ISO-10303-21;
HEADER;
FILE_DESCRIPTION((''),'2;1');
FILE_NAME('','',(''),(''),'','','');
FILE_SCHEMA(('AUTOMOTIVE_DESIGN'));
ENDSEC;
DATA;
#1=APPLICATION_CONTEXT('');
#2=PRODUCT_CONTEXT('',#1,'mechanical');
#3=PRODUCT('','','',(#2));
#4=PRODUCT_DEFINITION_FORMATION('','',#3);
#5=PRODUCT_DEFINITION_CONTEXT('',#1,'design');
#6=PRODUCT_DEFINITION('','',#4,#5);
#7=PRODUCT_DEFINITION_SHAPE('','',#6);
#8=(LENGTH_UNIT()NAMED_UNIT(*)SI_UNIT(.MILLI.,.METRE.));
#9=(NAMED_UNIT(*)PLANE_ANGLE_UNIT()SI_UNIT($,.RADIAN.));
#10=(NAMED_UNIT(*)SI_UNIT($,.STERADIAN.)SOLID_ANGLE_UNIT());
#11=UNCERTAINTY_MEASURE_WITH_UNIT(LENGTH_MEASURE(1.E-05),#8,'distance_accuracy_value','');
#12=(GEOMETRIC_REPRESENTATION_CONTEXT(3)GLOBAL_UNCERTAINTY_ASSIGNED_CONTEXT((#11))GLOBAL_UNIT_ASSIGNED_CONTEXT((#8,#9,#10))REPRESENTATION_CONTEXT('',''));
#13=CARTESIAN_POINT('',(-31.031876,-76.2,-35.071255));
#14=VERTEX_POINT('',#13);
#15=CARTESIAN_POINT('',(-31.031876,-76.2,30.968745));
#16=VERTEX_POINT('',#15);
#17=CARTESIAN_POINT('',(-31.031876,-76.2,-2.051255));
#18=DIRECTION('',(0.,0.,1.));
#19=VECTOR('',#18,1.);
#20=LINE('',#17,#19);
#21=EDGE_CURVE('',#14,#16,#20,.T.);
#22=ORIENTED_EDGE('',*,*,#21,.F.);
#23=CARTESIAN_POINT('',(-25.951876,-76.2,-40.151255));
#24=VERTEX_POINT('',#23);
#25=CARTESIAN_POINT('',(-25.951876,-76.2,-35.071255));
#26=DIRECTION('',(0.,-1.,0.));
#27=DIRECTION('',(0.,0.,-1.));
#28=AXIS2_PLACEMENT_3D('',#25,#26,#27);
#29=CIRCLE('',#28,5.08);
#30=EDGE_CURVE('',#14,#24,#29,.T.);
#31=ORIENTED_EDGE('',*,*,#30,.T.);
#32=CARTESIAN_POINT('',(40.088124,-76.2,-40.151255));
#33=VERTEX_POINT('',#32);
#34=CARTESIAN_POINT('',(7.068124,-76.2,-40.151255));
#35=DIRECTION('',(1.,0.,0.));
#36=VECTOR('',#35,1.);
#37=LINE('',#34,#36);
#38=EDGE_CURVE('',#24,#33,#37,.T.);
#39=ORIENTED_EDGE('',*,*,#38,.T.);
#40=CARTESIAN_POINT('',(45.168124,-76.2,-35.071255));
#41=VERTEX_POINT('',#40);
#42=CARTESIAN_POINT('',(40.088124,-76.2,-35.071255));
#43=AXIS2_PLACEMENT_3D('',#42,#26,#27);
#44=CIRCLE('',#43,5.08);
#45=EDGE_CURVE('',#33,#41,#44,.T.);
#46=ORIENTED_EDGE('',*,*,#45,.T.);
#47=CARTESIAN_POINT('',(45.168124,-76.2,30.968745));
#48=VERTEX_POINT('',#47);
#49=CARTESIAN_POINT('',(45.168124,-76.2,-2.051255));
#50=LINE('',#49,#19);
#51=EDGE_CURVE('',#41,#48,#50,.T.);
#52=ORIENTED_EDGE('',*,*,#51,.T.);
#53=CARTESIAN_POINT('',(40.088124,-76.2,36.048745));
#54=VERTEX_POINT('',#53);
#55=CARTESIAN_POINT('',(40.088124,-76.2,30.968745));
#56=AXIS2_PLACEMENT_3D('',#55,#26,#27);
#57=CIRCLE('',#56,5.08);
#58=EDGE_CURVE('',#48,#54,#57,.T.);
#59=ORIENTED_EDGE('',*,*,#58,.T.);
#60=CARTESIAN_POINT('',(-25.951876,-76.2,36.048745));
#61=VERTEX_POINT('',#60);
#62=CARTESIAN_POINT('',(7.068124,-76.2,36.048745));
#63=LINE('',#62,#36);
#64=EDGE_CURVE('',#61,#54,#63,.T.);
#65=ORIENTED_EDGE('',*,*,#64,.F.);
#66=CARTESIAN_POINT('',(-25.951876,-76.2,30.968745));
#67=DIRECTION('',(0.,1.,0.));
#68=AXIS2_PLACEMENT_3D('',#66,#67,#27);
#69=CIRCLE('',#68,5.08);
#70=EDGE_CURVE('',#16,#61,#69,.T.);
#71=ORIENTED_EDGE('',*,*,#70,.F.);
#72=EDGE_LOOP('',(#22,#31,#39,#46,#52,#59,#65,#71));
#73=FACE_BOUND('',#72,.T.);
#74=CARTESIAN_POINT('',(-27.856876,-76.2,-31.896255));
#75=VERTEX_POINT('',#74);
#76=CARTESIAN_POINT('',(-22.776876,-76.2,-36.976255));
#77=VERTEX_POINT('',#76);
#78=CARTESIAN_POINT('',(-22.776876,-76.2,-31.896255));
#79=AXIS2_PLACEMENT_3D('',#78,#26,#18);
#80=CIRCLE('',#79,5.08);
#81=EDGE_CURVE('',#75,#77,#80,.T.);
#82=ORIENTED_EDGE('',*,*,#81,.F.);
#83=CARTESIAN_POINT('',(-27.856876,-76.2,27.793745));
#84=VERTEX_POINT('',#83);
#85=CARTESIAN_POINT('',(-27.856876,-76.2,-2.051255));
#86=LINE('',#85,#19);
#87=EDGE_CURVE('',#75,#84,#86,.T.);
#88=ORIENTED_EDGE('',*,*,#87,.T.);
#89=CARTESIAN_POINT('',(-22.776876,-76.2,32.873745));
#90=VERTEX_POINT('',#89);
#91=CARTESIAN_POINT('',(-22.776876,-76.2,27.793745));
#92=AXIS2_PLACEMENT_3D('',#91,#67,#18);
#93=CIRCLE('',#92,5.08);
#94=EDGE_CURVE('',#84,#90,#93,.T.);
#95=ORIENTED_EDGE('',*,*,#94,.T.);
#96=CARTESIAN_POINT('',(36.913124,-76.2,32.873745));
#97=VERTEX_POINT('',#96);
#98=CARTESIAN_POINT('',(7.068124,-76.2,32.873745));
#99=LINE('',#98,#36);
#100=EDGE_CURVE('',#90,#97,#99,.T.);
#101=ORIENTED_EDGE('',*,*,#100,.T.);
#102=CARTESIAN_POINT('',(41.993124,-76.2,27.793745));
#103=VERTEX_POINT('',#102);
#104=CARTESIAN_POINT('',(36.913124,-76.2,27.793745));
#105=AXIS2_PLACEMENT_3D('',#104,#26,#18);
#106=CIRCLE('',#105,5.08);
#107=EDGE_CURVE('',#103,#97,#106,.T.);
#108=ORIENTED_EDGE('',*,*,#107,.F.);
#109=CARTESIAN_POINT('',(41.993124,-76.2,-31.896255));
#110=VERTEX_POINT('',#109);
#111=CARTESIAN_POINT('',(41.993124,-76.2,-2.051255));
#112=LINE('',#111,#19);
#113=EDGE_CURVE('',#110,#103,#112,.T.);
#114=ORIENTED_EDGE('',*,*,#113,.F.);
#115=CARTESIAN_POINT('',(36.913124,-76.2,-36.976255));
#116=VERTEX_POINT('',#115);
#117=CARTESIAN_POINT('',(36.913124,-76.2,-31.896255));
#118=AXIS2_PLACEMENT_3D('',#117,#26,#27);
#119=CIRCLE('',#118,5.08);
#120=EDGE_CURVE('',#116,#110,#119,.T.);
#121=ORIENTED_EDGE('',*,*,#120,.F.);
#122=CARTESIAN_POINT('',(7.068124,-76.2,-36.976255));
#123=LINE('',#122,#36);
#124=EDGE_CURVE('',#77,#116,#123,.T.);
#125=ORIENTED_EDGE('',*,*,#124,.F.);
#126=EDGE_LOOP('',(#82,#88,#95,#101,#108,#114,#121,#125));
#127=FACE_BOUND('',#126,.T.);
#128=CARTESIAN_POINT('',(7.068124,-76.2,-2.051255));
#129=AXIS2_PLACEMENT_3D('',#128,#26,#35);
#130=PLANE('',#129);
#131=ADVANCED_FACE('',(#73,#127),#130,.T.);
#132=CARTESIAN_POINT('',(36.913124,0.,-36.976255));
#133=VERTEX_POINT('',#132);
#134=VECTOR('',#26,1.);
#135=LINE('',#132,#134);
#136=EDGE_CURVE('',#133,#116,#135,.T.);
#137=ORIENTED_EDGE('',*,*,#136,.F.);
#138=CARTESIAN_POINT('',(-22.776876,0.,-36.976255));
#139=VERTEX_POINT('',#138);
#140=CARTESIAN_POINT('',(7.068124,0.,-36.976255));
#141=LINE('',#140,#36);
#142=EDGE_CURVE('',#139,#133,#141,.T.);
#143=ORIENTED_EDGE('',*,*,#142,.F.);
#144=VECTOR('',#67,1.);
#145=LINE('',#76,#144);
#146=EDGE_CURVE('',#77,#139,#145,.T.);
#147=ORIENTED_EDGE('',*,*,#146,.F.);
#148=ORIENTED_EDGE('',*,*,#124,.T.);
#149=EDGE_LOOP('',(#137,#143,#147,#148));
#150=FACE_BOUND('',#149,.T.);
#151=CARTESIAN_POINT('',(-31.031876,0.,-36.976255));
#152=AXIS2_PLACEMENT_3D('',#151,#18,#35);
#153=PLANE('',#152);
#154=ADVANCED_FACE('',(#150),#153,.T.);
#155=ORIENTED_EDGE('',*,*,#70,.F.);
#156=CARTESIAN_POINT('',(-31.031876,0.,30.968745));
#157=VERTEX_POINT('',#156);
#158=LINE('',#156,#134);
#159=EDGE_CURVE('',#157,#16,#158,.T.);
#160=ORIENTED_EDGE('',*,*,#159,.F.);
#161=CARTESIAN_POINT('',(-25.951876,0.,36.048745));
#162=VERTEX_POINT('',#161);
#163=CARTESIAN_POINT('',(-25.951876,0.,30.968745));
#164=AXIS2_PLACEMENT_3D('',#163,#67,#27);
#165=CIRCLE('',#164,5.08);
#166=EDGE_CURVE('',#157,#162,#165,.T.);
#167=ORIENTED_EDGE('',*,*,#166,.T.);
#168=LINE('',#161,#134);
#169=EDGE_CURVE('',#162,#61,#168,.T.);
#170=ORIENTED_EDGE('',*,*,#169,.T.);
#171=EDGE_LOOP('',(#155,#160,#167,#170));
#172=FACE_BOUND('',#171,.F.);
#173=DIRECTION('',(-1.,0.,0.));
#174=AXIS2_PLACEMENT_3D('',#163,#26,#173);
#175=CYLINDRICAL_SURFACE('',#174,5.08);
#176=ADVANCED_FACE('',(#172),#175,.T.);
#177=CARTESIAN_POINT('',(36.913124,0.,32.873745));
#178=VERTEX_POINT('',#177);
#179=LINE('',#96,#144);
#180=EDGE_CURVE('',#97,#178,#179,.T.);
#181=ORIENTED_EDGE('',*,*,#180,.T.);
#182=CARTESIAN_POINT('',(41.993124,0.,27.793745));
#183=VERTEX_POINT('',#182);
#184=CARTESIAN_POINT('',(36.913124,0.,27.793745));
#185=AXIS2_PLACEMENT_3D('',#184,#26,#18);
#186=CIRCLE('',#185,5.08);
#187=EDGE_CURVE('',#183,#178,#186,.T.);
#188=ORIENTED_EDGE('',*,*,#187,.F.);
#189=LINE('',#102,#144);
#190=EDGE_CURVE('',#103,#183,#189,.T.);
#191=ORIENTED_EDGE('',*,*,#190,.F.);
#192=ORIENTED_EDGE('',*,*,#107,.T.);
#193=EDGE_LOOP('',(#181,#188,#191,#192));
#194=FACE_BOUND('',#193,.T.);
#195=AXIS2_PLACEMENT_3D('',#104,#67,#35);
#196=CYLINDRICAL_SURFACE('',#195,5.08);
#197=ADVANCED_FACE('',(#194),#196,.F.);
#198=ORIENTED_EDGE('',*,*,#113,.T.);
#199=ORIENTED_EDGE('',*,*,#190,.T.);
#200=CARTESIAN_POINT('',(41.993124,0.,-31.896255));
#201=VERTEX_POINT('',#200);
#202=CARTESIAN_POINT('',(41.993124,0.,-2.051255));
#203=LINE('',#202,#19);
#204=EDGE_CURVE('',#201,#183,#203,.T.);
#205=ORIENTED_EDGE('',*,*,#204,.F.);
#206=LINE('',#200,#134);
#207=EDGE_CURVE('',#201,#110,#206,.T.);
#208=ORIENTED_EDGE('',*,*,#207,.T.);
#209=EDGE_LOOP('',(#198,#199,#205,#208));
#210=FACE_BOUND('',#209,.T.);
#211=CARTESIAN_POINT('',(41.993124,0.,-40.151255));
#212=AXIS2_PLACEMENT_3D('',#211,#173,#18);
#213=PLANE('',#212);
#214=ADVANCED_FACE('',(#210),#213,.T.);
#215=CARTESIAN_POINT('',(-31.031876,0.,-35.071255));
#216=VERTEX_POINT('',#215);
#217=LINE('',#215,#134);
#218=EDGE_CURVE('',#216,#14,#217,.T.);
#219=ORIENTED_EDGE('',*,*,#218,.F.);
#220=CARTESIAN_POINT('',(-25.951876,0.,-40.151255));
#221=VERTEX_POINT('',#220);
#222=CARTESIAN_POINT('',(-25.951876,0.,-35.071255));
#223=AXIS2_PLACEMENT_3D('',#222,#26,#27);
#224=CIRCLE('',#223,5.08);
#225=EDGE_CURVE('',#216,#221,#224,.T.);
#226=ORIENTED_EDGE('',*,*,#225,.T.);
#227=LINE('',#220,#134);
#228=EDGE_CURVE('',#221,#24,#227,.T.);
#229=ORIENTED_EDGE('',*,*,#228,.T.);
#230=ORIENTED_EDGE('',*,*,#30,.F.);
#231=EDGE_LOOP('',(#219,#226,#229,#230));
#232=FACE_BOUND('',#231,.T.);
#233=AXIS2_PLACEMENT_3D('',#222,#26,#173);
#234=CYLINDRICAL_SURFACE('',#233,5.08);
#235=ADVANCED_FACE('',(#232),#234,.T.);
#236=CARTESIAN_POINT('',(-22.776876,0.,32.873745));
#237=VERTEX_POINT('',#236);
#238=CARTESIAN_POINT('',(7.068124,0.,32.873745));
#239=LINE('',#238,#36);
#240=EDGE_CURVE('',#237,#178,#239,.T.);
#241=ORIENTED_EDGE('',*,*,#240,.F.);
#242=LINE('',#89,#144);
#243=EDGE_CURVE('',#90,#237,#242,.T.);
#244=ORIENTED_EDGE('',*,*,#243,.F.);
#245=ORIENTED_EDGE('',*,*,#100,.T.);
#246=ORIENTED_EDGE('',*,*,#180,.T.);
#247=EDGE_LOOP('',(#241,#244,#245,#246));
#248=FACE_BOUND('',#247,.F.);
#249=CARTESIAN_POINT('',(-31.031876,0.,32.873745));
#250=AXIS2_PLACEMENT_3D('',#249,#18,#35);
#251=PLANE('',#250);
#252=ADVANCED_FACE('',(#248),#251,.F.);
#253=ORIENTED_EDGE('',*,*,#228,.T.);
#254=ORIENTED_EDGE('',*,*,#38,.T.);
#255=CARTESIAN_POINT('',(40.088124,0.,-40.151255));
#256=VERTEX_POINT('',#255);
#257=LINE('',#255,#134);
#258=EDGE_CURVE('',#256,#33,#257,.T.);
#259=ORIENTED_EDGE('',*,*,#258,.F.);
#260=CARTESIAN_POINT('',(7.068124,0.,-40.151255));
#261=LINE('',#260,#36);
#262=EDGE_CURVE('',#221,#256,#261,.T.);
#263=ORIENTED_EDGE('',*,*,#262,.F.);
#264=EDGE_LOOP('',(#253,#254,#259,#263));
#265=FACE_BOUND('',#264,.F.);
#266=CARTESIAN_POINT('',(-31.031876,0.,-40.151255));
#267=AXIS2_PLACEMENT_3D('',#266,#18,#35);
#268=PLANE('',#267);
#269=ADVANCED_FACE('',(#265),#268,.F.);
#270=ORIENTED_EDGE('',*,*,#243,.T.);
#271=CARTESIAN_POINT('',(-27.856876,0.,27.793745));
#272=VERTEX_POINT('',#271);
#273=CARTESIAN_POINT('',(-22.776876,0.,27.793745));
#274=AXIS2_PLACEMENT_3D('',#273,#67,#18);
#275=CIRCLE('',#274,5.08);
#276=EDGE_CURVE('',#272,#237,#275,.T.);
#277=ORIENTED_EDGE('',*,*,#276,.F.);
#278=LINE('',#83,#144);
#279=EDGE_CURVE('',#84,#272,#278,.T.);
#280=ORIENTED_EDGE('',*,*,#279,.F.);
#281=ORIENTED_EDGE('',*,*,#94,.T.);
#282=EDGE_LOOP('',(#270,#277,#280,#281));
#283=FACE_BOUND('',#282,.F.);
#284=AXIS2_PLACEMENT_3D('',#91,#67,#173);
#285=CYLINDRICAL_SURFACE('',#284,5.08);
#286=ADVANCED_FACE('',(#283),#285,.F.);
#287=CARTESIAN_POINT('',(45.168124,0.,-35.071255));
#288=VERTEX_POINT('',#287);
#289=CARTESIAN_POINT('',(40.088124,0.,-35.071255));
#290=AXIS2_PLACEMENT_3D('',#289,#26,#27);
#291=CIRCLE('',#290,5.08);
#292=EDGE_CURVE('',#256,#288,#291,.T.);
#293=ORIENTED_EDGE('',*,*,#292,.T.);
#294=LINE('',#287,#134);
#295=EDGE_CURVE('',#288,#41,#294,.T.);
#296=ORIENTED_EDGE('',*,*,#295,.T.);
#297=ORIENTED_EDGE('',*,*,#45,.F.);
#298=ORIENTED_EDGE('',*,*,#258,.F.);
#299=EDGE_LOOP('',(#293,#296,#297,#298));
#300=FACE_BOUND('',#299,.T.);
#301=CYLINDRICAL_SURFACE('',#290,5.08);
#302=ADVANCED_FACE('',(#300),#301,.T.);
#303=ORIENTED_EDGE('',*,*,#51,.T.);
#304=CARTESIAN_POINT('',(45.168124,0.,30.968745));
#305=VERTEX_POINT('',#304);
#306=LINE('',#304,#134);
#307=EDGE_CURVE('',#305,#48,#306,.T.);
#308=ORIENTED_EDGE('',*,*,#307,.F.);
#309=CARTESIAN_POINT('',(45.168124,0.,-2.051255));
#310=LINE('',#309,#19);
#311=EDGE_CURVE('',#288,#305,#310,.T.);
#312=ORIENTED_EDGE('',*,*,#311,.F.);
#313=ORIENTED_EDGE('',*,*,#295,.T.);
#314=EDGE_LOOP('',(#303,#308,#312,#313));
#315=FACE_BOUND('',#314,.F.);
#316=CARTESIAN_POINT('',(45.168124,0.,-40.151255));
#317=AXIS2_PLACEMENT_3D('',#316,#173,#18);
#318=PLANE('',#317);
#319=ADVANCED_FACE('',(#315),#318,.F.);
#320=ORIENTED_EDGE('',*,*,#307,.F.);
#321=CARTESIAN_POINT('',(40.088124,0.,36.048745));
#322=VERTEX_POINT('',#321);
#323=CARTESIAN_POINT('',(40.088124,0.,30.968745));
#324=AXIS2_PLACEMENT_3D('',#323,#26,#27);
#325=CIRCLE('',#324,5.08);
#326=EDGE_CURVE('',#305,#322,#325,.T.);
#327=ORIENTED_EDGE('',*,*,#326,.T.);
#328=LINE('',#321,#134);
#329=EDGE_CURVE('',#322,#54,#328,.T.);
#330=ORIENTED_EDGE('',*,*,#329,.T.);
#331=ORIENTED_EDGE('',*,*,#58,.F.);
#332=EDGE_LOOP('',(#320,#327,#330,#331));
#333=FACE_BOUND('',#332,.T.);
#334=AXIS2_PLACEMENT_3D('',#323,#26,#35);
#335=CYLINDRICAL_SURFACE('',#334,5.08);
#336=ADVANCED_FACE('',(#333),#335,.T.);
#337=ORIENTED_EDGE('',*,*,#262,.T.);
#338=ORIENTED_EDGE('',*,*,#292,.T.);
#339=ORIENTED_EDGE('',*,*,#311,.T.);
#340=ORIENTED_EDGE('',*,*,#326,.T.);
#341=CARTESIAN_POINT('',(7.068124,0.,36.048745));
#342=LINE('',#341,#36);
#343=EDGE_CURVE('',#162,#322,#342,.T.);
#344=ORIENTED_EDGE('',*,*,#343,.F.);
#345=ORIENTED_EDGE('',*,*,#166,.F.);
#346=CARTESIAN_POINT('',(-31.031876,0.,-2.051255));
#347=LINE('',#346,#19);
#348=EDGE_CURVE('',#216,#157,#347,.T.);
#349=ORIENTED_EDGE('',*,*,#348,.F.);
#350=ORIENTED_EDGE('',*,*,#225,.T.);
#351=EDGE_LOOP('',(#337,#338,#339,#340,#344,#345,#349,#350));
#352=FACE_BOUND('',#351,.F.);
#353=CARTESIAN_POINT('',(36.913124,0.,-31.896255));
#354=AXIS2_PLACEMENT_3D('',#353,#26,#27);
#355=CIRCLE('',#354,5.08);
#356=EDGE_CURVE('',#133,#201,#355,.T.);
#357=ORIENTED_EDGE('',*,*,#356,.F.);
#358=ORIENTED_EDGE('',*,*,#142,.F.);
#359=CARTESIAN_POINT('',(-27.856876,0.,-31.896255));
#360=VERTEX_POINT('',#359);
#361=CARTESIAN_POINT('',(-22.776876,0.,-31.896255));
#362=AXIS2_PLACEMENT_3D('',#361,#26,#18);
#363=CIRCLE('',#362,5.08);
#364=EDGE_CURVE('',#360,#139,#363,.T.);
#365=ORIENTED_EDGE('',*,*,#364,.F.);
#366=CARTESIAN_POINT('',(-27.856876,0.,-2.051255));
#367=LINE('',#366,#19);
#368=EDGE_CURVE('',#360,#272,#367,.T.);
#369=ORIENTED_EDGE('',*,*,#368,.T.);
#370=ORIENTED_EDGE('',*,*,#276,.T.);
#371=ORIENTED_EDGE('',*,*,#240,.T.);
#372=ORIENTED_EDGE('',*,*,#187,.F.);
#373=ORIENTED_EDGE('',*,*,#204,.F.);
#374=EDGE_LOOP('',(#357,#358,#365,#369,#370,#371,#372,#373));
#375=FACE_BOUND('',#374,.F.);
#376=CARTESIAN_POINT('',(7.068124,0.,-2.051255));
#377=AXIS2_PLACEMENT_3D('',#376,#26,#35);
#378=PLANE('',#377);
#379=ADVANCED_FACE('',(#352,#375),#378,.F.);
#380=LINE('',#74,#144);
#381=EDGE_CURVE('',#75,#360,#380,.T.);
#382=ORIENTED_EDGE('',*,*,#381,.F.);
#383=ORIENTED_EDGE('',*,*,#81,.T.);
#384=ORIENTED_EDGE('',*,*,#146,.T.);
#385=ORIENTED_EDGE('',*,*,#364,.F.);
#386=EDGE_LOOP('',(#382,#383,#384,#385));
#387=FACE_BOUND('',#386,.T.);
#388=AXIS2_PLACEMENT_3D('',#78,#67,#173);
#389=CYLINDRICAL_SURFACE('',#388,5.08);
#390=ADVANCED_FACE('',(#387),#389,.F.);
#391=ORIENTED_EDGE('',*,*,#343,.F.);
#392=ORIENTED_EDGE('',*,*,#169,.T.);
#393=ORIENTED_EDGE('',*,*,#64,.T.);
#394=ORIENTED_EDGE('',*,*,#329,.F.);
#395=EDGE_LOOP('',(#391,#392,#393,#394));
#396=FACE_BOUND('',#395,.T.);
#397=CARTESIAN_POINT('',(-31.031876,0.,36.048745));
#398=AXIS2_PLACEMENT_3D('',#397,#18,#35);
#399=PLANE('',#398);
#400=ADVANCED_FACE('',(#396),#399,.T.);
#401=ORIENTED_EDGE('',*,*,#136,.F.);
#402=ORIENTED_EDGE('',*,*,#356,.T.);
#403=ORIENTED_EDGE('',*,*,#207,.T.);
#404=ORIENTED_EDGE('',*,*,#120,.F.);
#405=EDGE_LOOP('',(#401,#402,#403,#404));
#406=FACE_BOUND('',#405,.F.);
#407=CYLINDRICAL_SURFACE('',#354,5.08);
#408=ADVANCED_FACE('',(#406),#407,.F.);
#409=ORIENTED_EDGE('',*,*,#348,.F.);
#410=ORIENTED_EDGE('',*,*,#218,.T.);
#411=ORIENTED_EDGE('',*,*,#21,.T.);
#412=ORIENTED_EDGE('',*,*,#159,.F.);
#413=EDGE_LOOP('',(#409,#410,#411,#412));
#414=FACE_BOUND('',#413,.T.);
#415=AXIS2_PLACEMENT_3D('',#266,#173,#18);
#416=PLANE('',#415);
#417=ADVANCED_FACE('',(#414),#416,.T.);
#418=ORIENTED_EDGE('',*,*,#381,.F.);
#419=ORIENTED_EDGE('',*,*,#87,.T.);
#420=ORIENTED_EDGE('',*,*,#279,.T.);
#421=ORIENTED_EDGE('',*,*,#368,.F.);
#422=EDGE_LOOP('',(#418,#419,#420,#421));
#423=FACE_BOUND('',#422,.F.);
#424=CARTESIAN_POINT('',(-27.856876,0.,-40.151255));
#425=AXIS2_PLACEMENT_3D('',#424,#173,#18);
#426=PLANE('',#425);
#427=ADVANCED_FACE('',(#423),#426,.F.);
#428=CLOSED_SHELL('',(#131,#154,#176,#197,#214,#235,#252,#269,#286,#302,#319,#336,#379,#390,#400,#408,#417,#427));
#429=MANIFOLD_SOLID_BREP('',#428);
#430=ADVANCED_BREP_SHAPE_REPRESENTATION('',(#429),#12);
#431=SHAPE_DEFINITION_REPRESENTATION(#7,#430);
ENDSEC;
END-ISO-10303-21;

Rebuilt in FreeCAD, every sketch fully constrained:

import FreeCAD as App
import Part
import Sketcher
from FreeCAD import Vector
Q = App.Units.Quantity


def edges_at(feature, points):
    """Names of the edges that pass closest to the given points."""
    edges = feature.Shape.Edges
    near = lambda p: min(range(len(edges)), key=lambda i: edges[i].distToShape(Part.Vertex(*p))[0])
    return sorted({f"Edge{near(p) + 1}" for p in points})


def faces_at(feature, points):
    """Names of the faces that lie closest to the given points."""
    faces = feature.Shape.Faces
    near = lambda p: min(range(len(faces)), key=lambda i: faces[i].distToShape(Part.Vertex(*p))[0])
    return sorted({f"Face{near(p) + 1}" for p in points})


def add_polygon(sketch, points):
    """Adds a closed chain of lines whose ends are joined by coincident constraints."""
    first, n = sketch.GeometryCount, len(points)
    for a, b in zip(points, points[1:] + points[:1]):
        sketch.addGeometry(Part.LineSegment(App.Vector(*a, 0), App.Vector(*b, 0)), False)
    for i in range(n):
        sketch.addConstraint(Sketcher.Constraint("Coincident", first + i, 2, first + (i + 1) % n, 1))

doc = App.newDocument("Part")
body = doc.addObject("PartDesign::Body", "Body")

# Sketch on XZ plane
sketch1 = body.newObject("Sketcher::SketchObject", "Sketch")
sketch1.AttachmentSupport = (doc.getObject("XZ_Plane"), [""])
sketch1.MapMode = "FlatFace"
add_polygon(sketch1, [(-31.031876, 36.048745), (-31.031876, -40.151255), (45.168124, -40.151255), (45.168124, 36.048745)])  # lines 0-3
sketch1.addConstraint([
    Sketcher.Constraint("Vertical", 0),
    Sketcher.Constraint("Horizontal", 1),
    Sketcher.Constraint("Vertical", 2),
    Sketcher.Constraint("Horizontal", 3),
    Sketcher.Constraint("Equal", 3, 0),
    Sketcher.Constraint("DistanceX", 1, 1, 1, 2, Q("3 in")),
    Sketcher.Constraint("DistanceX", 0, 2, -1, 1, Q("31.031876 mm")),
    Sketcher.Constraint("DistanceY", 0, 2, -1, 1, Q("40.151255 mm")),
])
pad1 = body.newObject("PartDesign::Pad", "Pad")
pad1.Profile = sketch1
pad1.Length = Q("3 in")
doc.recompute()

thickness = body.newObject("PartDesign::Thickness", "Thickness")
thickness.Base = (pad1, faces_at(pad1, [(7.068, -76.2, -2.051), (7.068, 0, -2.051)]))
thickness.Value = Q("0.125 in")
thickness.Reversed = True
thickness.Join = "Arc"
doc.recompute()

fillet = body.newObject("PartDesign::Fillet", "Fillet")
fillet.Base = (thickness, edges_at(thickness, [
    (-27.857, -38.1, 32.874),
    (41.993, -38.1, -36.976),
    (41.993, -38.1, 32.874),
    (-31.032, -38.1, -40.151),
    (45.168, -38.1, -40.151),
    (45.168, -38.1, 36.049),
    (-31.032, -38.1, 36.049),
    (-27.857, -38.1, -36.976),
]))
fillet.Radius = Q("0.2 in")

doc.recompute()
